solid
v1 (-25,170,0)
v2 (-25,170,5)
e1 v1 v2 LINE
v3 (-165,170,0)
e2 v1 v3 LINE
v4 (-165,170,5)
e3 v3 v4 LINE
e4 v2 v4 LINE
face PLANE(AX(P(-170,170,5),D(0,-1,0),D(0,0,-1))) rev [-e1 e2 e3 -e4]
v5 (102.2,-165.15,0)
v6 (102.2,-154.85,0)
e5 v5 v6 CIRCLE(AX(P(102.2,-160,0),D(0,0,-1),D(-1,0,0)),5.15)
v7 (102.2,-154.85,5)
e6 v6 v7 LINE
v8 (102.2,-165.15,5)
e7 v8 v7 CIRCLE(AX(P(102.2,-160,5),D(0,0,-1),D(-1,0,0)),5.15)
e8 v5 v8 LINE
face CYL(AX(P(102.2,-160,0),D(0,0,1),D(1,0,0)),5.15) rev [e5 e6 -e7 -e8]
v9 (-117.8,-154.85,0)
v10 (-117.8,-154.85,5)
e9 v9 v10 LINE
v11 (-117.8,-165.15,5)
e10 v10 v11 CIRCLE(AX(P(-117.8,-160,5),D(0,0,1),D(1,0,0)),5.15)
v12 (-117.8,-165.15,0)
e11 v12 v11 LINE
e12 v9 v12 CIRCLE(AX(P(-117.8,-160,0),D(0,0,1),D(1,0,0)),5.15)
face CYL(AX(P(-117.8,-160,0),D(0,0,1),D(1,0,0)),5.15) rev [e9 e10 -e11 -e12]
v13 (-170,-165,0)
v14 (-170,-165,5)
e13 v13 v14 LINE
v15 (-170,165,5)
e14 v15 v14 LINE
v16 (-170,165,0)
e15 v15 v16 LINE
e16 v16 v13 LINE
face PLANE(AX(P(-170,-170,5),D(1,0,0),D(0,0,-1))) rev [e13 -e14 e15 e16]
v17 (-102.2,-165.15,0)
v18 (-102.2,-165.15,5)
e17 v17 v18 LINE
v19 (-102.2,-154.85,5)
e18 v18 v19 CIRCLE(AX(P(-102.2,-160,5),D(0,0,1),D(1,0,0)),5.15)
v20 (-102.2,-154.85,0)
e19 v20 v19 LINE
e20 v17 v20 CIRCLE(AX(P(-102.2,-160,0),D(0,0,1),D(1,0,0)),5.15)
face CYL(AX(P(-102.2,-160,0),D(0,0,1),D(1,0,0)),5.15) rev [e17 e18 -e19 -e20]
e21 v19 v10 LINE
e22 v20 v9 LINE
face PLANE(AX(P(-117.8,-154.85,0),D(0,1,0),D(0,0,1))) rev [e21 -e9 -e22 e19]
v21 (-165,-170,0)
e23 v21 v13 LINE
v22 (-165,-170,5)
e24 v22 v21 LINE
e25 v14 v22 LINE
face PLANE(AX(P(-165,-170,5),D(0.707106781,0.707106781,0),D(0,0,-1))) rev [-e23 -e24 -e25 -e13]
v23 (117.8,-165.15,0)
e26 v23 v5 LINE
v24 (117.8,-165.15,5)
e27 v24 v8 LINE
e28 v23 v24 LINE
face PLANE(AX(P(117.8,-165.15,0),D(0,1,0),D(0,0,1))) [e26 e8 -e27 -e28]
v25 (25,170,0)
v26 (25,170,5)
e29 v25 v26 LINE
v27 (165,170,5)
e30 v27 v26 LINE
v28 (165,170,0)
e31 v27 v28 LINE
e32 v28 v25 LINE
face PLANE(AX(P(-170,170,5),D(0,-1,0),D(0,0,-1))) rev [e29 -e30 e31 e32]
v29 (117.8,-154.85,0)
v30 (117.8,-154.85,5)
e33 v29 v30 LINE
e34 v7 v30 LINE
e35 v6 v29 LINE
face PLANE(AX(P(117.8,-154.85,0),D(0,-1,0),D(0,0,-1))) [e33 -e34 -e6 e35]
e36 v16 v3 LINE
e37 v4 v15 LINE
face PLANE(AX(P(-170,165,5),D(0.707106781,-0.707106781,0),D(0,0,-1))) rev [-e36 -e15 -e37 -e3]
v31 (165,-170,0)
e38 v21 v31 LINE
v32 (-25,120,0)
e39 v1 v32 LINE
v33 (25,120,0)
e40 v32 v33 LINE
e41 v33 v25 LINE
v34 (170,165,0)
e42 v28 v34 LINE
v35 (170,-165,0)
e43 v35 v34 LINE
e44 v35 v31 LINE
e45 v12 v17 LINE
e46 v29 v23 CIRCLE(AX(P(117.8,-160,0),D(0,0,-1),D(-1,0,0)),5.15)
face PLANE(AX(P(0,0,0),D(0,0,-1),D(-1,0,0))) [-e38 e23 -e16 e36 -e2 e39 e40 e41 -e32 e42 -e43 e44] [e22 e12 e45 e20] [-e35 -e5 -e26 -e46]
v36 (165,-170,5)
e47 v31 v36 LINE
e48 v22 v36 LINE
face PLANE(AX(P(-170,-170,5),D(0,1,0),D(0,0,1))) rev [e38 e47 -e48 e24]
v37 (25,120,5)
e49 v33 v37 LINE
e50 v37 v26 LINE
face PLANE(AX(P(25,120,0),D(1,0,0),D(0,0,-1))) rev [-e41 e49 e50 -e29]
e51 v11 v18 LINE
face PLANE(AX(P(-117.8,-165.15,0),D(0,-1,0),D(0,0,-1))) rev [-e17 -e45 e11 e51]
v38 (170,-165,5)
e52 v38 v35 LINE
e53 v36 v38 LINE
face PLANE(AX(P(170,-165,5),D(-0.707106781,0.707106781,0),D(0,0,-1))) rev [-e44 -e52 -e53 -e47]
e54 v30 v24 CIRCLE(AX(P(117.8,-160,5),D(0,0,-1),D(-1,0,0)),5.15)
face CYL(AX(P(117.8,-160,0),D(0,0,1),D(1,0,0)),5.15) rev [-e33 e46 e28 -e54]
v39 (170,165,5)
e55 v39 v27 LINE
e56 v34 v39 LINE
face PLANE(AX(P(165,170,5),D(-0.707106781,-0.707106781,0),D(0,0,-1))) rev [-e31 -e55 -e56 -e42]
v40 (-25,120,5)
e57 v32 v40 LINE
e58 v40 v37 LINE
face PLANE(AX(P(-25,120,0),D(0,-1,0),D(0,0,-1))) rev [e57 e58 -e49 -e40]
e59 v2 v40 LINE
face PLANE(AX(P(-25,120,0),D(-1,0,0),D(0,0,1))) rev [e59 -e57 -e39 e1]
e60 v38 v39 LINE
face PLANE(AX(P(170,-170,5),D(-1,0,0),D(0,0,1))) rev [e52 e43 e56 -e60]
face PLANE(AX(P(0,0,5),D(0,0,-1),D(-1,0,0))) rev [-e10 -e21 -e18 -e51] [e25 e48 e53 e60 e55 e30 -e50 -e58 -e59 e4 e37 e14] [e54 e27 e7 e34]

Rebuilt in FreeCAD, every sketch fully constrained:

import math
import FreeCAD as App
import Part
import Sketcher


def edges_at(feature, points):
    """Names of the edges that pass closest to the given points."""
    edges = feature.Shape.Edges
    near = lambda p: min(range(len(edges)), key=lambda i: edges[i].distToShape(Part.Vertex(*p))[0])
    return sorted({f"Edge{near(p) + 1}" for p in points})

doc = App.newDocument("Part")
params = doc.addObject("Spreadsheet::Sheet", "Params")
for row, (alias, value) in enumerate([
    ("sketch1_width", "340 mm"),
    ("pad1_length", "5 mm"),
    ("chamfer_size", "5 mm"),
    ("sketch2_radius", "4.9 mm"),
    ("sketch2_radius2", "5.15 mm"),
    ("sketch2_width", "15.6 mm"),
    ("sketch3_width", "50 mm"),
], start=1):
    params.set(f"A{row}", alias)
    params.set(f"B{row}", "=" + value)
    params.setAlias(f"B{row}", alias)

body = doc.addObject("PartDesign::Body", "Body")

# Sketch on XY plane
sketch1 = body.newObject("Sketcher::SketchObject", "Sketch")
sketch1.AttachmentSupport = (doc.getObject("XY_Plane"), [""])
sketch1.MapMode = "FlatFace"
sketch1.addGeometry([
    Part.LineSegment(App.Vector(-170, 170, 0), App.Vector(-170, -170, 0)),
    Part.LineSegment(App.Vector(-170, -170, 0), App.Vector(170, -170, 0)),
    Part.LineSegment(App.Vector(170, -170, 0), App.Vector(170, 170, 0)),
    Part.LineSegment(App.Vector(170, 170, 0), App.Vector(-170, 170, 0)),
], False)
sketch1.addConstraint([
    Sketcher.Constraint("Coincident", 0, 2, 1, 1),
    Sketcher.Constraint("Coincident", 1, 2, 2, 1),
    Sketcher.Constraint("Coincident", 2, 2, 3, 1),
    Sketcher.Constraint("Coincident", 3, 2, 0, 1),
    Sketcher.Constraint("Vertical", 0),
    Sketcher.Constraint("Horizontal", 1),
    Sketcher.Constraint("Vertical", 2),
    Sketcher.Constraint("Horizontal", 3),
    Sketcher.Constraint("Symmetric", 0, 2, 2, 2, -1, 1),
    Sketcher.Constraint("Equal", 3, 0),
    Sketcher.Constraint("DistanceX", 1, 1, 1, 2, 340.0),
])
sketch1.setExpression("Constraints[10]", "Params.sketch1_width")
pad1 = body.newObject("PartDesign::Pad", "Pad")
pad1.Profile = sketch1
pad1.setExpression("Length", "Params.pad1_length")
doc.recompute()

chamfer = body.newObject("PartDesign::Chamfer", "Chamfer")
chamfer.Base = (pad1, edges_at(pad1, [
    (170, -170, 2.5),
    (-170, -170, 2.5),
    (-170, 170, 2.5),
    (170, 170, 2.5),
]))
chamfer.setExpression("Size", "Params.chamfer_size")

# Sketch on XY plane
sketch2 = body.newObject("Sketcher::SketchObject", "Sketch001")
sketch2.AttachmentSupport = (doc.getObject("XY_Plane"), [""])
sketch2.MapMode = "FlatFace"
sketch2.AttachmentOffset = App.Placement(App.Vector(0, 0, 5), App.Rotation())
sketch2.addGeometry([
    Part.LineSegment(App.Vector(7.8, 164.9, 0), App.Vector(-7.8, 164.9, 0)),  # 0
    Part.ArcOfCircle(Part.Circle(App.Vector(-7.8, 160, 0), App.Vector(0, 0, 1), 4.9), math.radians(90), math.radians(270)),  # 1
    Part.LineSegment(App.Vector(-7.8, 155.1, 0), App.Vector(7.8, 155.1, 0)),  # 2
    Part.ArcOfCircle(Part.Circle(App.Vector(7.8, 160, 0), App.Vector(0, 0, 1), 4.9), math.radians(-90), math.radians(90)),  # 3
    Part.LineSegment(App.Vector(-102.2, -154.8, 0), App.Vector(-117.8, -154.8, 0)),  # 4
    Part.ArcOfCircle(Part.Circle(App.Vector(-117.8, -160, 0), App.Vector(0, 0, 1), 5.2), math.radians(90), math.radians(270)),  # 5
    Part.LineSegment(App.Vector(-117.8, -165.2, 0), App.Vector(-102.2, -165.2, 0)),  # 6
    Part.ArcOfCircle(Part.Circle(App.Vector(-102.2, -160, 0), App.Vector(0, 0, 1), 5.2), math.radians(-90), math.radians(90)),  # 7
], False)
sketch2.addConstraint([
    Sketcher.Constraint("Tangent", 0, 2, 1, 1),
    Sketcher.Constraint("Tangent", 1, 2, 2, 1),
    Sketcher.Constraint("Tangent", 2, 2, 3, 1),
    Sketcher.Constraint("Tangent", 3, 2, 0, 1),
    Sketcher.Constraint("Tangent", 4, 2, 5, 1),
    Sketcher.Constraint("Tangent", 5, 2, 6, 1),
    Sketcher.Constraint("Tangent", 6, 2, 7, 1),
    Sketcher.Constraint("Tangent", 7, 2, 4, 1),
    Sketcher.Constraint("Horizontal", 0),
    Sketcher.Constraint("Horizontal", 2),
    Sketcher.Constraint("Horizontal", 4),
    Sketcher.Constraint("Horizontal", 6),
    Sketcher.Constraint("Equal", 2, 4),
    Sketcher.Constraint("Radius", 1, 4.9),
    Sketcher.Constraint("Radius", 5, 5.15),
    Sketcher.Constraint("DistanceX", 0, 2, 0, 1, 15.6),
    Sketcher.Constraint("DistanceY", -1, 1, 1, 3, 160.0),
    Sketcher.Constraint("DistanceY", 5, 3, -1, 1, 160.0),
    Sketcher.Constraint("DistanceX", 5, 3, 1, 3, 110.0),
    Sketcher.Constraint("DistanceX", 1, 3, -1, 1, 7.8),
])
sketch2.setExpression("Constraints[13]", "Params.sketch2_radius")
sketch2.setExpression("Constraints[14]", "Params.sketch2_radius2")
sketch2.setExpression("Constraints[15]", "Params.sketch2_width")
pocket1 = body.newObject("PartDesign::Pocket", "Pocket")
pocket1.Profile = sketch2
pocket1.Type = "ThroughAll"
doc.recompute()

mirrored = body.newObject("PartDesign::Mirrored", "Mirrored")
mirrored.Originals = [pocket1]
mirrored.MirrorPlane = (doc.getObject("YZ_Plane"), [""])
body.Tip = mirrored

# Sketch on XY plane
sketch3 = body.newObject("Sketcher::SketchObject", "Sketch002")
sketch3.AttachmentSupport = (doc.getObject("XY_Plane"), [""])
sketch3.MapMode = "FlatFace"
sketch3.AttachmentOffset = App.Placement(App.Vector(0, 0, 5), App.Rotation())
sketch3.addGeometry([
    Part.LineSegment(App.Vector(-25, 170, 0), App.Vector(-25, 120, 0)),
    Part.LineSegment(App.Vector(-25, 120, 0), App.Vector(25, 120, 0)),
    Part.LineSegment(App.Vector(25, 120, 0), App.Vector(25, 170, 0)),
    Part.LineSegment(App.Vector(25, 170, 0), App.Vector(-25, 170, 0)),
], False)
sketch3.addConstraint([
    Sketcher.Constraint("Coincident", 0, 2, 1, 1),
    Sketcher.Constraint("Coincident", 1, 2, 2, 1),
    Sketcher.Constraint("Coincident", 2, 2, 3, 1),
    Sketcher.Constraint("Coincident", 3, 2, 0, 1),
    Sketcher.Constraint("Vertical", 0),
    Sketcher.Constraint("Horizontal", 1),
    Sketcher.Constraint("Vertical", 2),
    Sketcher.Constraint("Horizontal", 3),
    Sketcher.Constraint("Equal", 3, 0),
    Sketcher.Constraint("DistanceX", 1, 1, 1, 2, 50.0),
    Sketcher.Constraint("DistanceX", 0, 2, -1, 1, 25.0),
    Sketcher.Constraint("DistanceY", -1, 1, 0, 2, 120.0),
])
sketch3.setExpression("Constraints[9]", "Params.sketch3_width")
pocket2 = body.newObject("PartDesign::Pocket", "Pocket001")
pocket2.Profile = sketch3
pocket2.Type = "ThroughAll"

doc.recompute()
